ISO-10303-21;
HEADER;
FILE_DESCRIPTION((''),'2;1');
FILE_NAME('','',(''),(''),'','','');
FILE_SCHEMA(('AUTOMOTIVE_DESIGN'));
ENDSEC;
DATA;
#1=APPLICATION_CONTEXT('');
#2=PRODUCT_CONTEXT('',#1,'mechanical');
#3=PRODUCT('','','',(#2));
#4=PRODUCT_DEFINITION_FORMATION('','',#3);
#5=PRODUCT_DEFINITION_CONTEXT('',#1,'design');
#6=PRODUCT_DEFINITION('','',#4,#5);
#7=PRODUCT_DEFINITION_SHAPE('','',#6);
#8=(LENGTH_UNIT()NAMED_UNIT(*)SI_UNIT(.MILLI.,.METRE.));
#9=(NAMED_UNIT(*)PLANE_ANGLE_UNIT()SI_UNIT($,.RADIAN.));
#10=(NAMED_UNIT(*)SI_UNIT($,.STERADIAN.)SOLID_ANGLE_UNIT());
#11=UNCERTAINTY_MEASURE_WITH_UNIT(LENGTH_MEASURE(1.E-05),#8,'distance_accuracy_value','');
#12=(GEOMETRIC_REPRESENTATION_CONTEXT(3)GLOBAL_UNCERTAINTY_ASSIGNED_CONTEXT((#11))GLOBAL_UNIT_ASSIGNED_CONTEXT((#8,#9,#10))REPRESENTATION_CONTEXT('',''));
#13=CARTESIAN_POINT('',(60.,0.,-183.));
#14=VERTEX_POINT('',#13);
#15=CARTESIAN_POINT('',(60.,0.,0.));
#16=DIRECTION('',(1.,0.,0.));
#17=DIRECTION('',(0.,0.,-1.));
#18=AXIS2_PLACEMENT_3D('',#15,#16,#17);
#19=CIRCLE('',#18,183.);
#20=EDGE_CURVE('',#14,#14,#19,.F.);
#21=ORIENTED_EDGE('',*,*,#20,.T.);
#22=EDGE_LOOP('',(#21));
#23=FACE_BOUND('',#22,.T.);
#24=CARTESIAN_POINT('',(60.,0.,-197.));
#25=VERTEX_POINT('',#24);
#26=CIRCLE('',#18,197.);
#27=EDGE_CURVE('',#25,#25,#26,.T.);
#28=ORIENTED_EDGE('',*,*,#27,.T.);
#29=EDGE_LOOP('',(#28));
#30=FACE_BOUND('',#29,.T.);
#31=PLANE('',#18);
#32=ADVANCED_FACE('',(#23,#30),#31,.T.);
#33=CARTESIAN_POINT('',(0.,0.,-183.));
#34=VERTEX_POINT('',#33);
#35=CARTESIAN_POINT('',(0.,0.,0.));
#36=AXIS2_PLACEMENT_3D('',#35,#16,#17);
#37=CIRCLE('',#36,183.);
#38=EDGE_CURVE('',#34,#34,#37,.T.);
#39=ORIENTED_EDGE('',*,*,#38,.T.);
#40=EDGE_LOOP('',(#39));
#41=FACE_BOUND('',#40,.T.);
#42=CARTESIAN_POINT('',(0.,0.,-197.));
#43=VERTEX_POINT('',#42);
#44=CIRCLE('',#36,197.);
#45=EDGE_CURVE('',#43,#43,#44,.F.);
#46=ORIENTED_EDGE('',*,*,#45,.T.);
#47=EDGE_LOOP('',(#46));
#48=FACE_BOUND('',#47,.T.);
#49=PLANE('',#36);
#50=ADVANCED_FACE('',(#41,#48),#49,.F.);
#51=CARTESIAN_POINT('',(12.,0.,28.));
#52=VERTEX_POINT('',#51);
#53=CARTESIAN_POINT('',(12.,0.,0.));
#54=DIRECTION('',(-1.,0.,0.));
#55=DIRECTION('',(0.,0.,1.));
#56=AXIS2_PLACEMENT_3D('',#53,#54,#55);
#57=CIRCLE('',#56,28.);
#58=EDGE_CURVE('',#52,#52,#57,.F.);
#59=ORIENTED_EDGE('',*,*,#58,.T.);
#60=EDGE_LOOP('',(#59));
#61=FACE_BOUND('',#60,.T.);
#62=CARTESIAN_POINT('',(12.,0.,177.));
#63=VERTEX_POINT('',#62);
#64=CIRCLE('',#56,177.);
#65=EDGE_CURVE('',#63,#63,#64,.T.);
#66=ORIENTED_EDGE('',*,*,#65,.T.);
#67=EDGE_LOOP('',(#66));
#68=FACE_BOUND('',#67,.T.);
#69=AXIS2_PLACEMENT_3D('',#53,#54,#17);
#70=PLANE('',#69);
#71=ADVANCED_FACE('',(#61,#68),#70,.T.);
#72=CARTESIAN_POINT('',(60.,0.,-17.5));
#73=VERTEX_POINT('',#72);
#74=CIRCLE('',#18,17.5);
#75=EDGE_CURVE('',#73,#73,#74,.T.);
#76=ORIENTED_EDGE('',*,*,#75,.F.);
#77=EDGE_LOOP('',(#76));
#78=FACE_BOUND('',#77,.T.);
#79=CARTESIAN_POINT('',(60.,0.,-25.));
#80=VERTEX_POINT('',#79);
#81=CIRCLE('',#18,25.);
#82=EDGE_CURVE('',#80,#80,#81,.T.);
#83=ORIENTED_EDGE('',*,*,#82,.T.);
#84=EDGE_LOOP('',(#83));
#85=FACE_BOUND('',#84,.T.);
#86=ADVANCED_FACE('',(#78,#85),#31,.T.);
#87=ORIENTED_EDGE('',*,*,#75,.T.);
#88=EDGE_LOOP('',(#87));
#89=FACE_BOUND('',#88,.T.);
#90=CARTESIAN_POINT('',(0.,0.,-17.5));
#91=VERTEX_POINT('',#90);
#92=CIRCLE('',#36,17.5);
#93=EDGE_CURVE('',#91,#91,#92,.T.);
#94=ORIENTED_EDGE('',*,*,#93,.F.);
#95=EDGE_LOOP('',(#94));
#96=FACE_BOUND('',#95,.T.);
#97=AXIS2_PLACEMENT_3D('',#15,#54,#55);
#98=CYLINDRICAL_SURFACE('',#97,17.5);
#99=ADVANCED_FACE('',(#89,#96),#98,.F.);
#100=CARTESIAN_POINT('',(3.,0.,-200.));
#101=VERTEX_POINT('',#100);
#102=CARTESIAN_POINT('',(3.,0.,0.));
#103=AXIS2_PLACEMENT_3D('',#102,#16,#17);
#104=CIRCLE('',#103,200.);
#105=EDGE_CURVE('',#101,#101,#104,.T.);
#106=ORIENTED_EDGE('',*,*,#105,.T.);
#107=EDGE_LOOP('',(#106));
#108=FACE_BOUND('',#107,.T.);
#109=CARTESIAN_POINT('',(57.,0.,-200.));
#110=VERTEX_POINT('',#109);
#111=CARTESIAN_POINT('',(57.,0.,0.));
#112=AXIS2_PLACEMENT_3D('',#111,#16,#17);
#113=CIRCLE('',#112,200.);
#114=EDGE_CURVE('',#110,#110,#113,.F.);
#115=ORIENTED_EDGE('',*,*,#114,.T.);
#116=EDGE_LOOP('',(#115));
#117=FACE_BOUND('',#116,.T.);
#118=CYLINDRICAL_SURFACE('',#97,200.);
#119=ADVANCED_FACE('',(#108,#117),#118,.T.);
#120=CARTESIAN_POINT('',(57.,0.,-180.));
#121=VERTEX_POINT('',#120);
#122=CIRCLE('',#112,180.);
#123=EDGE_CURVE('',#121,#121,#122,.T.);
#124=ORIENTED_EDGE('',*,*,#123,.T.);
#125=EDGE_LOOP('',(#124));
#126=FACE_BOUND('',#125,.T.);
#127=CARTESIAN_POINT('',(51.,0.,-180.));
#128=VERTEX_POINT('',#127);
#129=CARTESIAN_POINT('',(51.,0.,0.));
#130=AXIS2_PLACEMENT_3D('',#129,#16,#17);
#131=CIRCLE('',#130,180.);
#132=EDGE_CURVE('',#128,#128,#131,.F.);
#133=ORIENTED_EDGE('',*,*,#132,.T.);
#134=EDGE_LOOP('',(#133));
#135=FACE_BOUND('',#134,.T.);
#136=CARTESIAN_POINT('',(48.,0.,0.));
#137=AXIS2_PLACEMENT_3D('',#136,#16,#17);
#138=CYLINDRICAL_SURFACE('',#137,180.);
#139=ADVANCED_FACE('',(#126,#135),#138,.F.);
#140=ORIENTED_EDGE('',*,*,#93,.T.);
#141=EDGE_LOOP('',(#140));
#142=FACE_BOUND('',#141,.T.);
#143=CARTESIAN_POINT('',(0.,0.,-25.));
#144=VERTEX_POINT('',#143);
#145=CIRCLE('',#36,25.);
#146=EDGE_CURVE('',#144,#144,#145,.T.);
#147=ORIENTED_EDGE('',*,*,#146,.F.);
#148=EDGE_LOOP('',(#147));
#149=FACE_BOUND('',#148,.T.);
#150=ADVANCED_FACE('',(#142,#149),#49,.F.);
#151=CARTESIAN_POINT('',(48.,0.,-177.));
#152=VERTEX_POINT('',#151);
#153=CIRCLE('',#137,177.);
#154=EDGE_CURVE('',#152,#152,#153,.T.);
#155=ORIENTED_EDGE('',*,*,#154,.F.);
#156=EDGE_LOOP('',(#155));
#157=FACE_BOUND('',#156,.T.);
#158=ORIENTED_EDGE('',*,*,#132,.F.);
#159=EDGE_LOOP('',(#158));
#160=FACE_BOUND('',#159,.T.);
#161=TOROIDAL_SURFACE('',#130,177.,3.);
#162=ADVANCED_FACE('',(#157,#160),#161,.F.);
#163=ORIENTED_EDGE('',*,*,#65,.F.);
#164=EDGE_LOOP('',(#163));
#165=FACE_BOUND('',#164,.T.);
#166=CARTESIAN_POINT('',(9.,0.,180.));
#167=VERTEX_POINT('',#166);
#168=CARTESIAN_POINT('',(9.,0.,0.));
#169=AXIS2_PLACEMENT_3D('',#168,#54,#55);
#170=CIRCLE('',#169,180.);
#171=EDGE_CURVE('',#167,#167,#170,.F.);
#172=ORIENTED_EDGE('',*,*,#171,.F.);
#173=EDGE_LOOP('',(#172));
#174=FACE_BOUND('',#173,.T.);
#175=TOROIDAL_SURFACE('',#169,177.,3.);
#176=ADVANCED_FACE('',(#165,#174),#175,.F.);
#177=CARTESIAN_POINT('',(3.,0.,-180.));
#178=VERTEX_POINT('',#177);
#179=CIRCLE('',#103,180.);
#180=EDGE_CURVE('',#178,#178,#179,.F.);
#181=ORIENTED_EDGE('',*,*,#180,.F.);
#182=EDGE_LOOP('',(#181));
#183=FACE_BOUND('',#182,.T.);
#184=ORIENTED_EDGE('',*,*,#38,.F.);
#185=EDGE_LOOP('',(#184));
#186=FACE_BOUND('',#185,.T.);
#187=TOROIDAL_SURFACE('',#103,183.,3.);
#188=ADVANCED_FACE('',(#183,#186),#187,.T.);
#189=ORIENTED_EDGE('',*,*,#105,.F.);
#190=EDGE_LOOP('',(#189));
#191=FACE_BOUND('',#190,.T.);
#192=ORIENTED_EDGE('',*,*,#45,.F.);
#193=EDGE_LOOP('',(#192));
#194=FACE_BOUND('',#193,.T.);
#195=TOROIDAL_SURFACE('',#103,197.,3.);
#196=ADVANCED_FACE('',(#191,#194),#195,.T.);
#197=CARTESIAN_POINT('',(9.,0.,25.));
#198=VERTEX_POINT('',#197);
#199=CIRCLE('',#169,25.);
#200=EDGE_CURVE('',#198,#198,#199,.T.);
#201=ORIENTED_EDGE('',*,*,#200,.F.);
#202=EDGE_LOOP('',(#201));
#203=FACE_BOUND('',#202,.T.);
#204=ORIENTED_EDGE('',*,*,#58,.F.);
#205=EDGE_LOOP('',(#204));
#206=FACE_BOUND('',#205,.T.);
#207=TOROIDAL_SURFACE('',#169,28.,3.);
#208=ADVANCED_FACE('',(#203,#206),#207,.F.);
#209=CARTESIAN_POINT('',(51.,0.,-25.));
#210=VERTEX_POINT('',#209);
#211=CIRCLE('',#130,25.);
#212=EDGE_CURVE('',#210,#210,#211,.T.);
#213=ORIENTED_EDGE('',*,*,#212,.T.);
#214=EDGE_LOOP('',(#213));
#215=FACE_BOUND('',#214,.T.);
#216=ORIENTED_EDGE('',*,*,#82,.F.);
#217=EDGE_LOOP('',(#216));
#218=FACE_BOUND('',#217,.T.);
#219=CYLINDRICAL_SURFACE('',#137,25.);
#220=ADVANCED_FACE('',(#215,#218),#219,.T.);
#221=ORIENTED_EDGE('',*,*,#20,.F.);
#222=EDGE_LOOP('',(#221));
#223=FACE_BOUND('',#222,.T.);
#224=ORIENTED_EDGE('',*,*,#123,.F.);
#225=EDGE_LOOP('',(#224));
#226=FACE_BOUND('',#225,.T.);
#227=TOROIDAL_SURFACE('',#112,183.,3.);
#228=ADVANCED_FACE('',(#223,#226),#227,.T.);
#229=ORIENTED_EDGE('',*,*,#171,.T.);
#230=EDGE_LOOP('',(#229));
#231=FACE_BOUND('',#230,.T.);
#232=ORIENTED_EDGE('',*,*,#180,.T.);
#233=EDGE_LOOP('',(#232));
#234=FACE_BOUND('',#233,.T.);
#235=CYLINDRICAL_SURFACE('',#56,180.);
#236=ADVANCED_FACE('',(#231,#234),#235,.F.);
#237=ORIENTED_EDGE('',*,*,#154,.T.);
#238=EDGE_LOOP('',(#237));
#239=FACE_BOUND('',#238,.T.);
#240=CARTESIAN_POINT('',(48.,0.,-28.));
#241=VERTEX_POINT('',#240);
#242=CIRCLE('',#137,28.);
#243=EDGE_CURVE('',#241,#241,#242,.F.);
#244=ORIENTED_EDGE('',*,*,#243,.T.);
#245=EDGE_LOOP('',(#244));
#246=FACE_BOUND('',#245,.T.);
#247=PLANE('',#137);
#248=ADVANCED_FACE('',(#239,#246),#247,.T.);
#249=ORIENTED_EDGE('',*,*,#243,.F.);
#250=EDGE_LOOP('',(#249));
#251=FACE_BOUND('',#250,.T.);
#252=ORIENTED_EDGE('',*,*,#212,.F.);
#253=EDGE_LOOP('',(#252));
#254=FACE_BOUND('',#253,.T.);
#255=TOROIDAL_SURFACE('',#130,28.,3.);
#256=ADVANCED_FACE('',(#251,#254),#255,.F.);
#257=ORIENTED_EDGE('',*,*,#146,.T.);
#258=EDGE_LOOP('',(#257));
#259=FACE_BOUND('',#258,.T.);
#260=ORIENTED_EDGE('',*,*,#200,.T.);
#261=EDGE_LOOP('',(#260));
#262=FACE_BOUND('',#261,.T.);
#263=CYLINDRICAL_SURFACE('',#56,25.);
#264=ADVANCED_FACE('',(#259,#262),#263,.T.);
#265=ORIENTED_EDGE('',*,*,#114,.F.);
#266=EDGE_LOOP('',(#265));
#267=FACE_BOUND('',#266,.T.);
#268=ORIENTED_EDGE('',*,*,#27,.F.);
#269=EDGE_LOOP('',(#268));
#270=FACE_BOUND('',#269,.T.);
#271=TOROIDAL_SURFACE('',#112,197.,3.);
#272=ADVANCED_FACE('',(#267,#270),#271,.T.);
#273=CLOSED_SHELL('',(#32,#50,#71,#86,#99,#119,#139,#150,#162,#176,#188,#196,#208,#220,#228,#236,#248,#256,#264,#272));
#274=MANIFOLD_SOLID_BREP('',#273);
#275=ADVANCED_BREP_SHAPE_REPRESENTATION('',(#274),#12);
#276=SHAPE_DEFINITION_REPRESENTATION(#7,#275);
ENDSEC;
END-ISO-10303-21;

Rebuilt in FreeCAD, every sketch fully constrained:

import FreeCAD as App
import Part
import Sketcher
from FreeCAD import Vector
Q = App.Units.Quantity


def edges_at(feature, points):
    """Names of the edges that pass closest to the given points."""
    edges = feature.Shape.Edges
    near = lambda p: min(range(len(edges)), key=lambda i: edges[i].distToShape(Part.Vertex(*p))[0])
    return sorted({f"Edge{near(p) + 1}" for p in points})

doc = App.newDocument("Part")
params = doc.addObject("Spreadsheet::Sheet", "Params")
for row, (alias, value) in enumerate([
    ("sketch1_diameter", "400 mm"),
    ("sketch1_diameter2", "35 mm"),
    ("pad1_length", "60 mm"),
    ("fillet_radius", "3 mm"),
    ("sketch2_diameter", "360 mm"),
    ("sketch2_diameter2", "50 mm"),
    ("pocket1_length", "12 mm"),
    ("fillet2_radius", "3 mm"),
    ("fillet3_radius", "3 mm"),
], start=1):
    params.set(f"A{row}", alias)
    params.set(f"B{row}", "=" + value)
    params.setAlias(f"B{row}", alias)

body = doc.addObject("PartDesign::Body", "Body")

# Sketch on YZ plane
sketch1 = body.newObject("Sketcher::SketchObject", "Sketch")
sketch1.AttachmentSupport = (doc.getObject("YZ_Plane"), [""])
sketch1.MapMode = "FlatFace"
sketch1.addGeometry([
    Part.Circle(Vector(0, 0, 0), Vector(0, 0, 1), 200),
    Part.Circle(Vector(0, 0, 0), Vector(0, 0, 1), 17.5),
], False)
sketch1.addConstraint([
    Sketcher.Constraint("Coincident", 0, 3, -1, 1),
    Sketcher.Constraint("Coincident", 1, 3, -1, 1),
    Sketcher.Constraint("Diameter", 0, Q("400 mm")),
    Sketcher.Constraint("Diameter", 1, Q("35 mm")),
])
sketch1.setExpression("Constraints[2]", "Params.sketch1_diameter")
sketch1.setExpression("Constraints[3]", "Params.sketch1_diameter2")
pad1 = body.newObject("PartDesign::Pad", "Pad")
pad1.Profile = sketch1
pad1.setExpression("Length", "Params.pad1_length")
doc.recompute()

fillet = body.newObject("PartDesign::Fillet", "Fillet")
fillet.Base = (pad1, edges_at(pad1, [(0, 0, 200), (60, 0, 200)]))
fillet.setExpression("Radius", "Params.fillet_radius")

# Sketch on YZ plane
sketch2 = body.newObject("Sketcher::SketchObject", "Sketch001")
sketch2.AttachmentSupport = (doc.getObject("YZ_Plane"), [""])
sketch2.MapMode = "FlatFace"
sketch2.AttachmentOffset = App.Placement(Vector(0, 0, 60), App.Rotation())
sketch2.addGeometry([
    Part.Circle(Vector(0, 0, 0), Vector(0, 0, 1), 180),
    Part.Circle(Vector(0, 0, 0), Vector(0, 0, 1), 25),
], False)
sketch2.addConstraint([
    Sketcher.Constraint("Coincident", 0, 3, -1, 1),
    Sketcher.Constraint("Coincident", 1, 3, -1, 1),
    Sketcher.Constraint("Diameter", 0, Q("360 mm")),
    Sketcher.Constraint("Diameter", 1, Q("50 mm")),
])
sketch2.setExpression("Constraints[2]", "Params.sketch2_diameter")
sketch2.setExpression("Constraints[3]", "Params.sketch2_diameter2")
pocket1 = body.newObject("PartDesign::Pocket", "Pocket")
pocket1.Profile = sketch2
pocket1.setExpression("Length", "Params.pocket1_length")
doc.recompute()

fillet2 = body.newObject("PartDesign::Fillet", "Fillet001")
fillet2.Base = (pocket1, edges_at(pocket1, [(48, 0, 180), (48, 0, 25), (60, 0, 180)]))
fillet2.setExpression("Radius", "Params.fillet2_radius")
doc.recompute()

datumplane = body.newObject("PartDesign::Plane", "DatumPlane")
datumplane.AttachmentSupport = (doc.getObject("YZ_Plane"), [""])
datumplane.MapMode = "FlatFace"
datumplane.AttachmentOffset = App.Placement(Vector(0, 0, 30), App.Rotation())
mirrored = body.newObject("PartDesign::Mirrored", "Mirrored")
mirrored.Originals = [pocket1]
mirrored.MirrorPlane = (datumplane, [""])
body.Tip = mirrored
doc.recompute()

fillet3 = body.newObject("PartDesign::Fillet", "Fillet002")
fillet3.Base = (mirrored, edges_at(mirrored, [(12, 0, 180), (0, 0, 180), (12, 0, 25)]))
fillet3.setExpression("Radius", "Params.fillet3_radius")

doc.recompute()
